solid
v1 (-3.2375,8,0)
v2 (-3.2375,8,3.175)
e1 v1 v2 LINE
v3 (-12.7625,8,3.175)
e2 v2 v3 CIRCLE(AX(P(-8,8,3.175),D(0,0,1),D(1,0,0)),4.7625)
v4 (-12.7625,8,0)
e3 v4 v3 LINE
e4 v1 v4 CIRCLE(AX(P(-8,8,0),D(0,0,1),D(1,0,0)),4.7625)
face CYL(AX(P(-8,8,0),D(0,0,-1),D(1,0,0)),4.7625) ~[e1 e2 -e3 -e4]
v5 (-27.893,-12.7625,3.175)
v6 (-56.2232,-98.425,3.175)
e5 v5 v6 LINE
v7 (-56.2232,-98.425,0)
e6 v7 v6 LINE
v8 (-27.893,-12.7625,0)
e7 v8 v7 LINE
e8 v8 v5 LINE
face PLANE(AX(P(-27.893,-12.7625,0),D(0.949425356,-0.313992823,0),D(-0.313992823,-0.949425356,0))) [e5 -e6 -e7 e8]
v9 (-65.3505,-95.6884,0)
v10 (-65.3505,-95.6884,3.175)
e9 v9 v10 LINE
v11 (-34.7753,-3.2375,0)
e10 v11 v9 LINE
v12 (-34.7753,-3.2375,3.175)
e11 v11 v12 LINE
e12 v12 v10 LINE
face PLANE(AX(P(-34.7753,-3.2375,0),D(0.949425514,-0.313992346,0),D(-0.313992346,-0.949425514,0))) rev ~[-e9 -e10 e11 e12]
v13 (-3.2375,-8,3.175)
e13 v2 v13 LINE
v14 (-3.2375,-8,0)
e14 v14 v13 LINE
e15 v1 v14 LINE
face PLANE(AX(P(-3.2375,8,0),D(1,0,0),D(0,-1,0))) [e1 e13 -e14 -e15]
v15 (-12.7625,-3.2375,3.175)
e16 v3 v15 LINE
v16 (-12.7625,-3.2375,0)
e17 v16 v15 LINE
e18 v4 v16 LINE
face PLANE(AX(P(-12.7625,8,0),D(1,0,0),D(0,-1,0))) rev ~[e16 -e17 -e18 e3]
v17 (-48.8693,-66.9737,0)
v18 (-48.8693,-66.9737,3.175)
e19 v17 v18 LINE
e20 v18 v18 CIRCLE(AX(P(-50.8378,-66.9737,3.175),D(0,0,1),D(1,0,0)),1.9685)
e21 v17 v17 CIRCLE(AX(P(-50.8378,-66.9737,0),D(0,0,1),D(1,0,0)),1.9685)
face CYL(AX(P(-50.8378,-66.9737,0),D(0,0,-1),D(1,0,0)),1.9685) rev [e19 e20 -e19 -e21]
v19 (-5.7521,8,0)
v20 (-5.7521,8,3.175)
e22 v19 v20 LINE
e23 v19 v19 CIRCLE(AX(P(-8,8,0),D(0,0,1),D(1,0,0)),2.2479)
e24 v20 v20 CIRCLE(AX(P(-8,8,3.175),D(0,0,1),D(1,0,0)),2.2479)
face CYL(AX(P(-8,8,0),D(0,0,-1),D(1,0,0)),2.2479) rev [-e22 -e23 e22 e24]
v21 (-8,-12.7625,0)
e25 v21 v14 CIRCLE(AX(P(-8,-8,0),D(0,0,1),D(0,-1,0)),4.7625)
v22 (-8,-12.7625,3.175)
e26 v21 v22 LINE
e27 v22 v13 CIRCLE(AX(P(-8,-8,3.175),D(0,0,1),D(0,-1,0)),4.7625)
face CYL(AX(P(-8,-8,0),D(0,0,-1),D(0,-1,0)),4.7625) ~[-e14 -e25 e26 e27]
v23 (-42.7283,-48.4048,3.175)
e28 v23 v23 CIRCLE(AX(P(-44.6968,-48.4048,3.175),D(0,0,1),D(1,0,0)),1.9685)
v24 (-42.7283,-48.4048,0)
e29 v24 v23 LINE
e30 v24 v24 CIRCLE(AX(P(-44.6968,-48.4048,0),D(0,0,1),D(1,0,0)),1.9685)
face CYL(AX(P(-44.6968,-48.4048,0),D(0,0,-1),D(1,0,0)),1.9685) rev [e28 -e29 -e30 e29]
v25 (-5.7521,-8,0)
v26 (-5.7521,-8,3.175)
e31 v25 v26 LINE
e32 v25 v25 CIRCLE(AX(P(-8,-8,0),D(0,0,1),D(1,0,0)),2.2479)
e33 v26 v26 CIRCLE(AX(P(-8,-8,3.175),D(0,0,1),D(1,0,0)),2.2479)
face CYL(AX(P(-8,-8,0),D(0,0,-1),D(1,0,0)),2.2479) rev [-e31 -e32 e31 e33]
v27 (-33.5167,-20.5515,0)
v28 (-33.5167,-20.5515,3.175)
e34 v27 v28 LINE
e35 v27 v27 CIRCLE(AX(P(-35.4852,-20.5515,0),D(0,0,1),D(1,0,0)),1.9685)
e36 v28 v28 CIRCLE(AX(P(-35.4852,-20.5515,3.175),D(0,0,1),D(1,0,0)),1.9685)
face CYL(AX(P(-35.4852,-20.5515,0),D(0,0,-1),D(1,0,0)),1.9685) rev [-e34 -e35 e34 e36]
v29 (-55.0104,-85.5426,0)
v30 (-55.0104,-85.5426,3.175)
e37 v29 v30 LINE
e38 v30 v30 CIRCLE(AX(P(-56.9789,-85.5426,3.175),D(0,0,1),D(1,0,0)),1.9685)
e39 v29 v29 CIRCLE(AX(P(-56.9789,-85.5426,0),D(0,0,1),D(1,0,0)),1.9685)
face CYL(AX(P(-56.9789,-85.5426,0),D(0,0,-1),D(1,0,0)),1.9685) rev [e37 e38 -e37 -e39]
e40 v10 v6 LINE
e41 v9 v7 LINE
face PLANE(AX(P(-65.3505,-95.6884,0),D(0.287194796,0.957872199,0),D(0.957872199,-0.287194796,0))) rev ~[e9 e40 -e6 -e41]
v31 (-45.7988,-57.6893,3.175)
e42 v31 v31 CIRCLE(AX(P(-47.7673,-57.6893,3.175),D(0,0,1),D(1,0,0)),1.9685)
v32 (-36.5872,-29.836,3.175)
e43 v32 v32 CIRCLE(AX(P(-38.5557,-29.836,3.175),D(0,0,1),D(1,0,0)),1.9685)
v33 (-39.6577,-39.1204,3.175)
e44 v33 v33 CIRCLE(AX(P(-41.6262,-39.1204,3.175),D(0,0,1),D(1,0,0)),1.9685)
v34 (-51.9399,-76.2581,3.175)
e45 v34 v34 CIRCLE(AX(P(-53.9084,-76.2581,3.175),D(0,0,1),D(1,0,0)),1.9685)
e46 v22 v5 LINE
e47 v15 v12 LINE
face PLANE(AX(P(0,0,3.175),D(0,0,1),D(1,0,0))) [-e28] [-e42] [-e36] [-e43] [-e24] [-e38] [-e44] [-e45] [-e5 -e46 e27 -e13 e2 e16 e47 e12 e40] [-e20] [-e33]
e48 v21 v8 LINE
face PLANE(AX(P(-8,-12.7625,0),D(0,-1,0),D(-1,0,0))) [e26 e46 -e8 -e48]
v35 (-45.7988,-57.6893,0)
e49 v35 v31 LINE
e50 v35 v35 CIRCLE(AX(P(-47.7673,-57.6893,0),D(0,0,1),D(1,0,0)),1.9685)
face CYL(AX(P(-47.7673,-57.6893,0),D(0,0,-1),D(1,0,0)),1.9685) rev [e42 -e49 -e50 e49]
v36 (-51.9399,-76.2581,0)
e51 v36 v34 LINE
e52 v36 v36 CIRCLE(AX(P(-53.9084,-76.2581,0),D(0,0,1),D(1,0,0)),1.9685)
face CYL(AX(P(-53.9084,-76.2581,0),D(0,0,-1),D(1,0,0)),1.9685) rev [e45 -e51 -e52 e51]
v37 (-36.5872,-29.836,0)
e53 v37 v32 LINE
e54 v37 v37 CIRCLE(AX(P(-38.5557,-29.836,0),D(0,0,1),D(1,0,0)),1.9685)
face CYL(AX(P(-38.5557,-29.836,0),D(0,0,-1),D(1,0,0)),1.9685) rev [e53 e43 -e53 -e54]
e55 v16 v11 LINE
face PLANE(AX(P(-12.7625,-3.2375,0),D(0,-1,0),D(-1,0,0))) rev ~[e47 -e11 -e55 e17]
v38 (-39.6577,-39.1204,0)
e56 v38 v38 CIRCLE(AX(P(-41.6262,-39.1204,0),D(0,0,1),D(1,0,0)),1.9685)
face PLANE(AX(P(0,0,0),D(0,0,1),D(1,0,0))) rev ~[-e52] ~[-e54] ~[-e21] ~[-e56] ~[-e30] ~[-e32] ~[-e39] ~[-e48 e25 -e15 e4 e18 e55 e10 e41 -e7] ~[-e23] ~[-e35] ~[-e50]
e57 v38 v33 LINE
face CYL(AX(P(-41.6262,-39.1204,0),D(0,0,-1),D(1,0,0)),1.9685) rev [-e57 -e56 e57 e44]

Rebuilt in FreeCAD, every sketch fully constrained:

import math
import FreeCAD as App
import Part
import Sketcher

V = App.Vector
Q = App.Units.Quantity

doc = App.newDocument("Part")
body = doc.addObject("PartDesign::Body", "Body")

sketch1 = body.newObject("Sketcher::SketchObject", "Sketch")
sketch1.AttachmentSupport = (doc.getObject("XY_Plane"), [""])
sketch1.MapMode = "FlatFace"
sketch1.addGeometry(Part.LineSegment(V(-3.2, -8, 0), V(-3.2, 8, 0)), False)
sketch1.addGeometry(Part.ArcOfCircle(Part.Circle(V(-8, 8, 0), V(0, 0, 1), 4.8), math.radians(0), math.radians(180)), False)
sketch1.addGeometry(Part.LineSegment(V(-12.8, 8, 0), V(-12.8, -3.2, 0)), False)
sketch1.addGeometry(Part.LineSegment(V(-12.8, -3.2, 0), V(-34.8, -3.2, 0)), False)
sketch1.addGeometry(Part.LineSegment(V(-34.8, -3.2, 0), V(-65.4, -95.7, 0)), False)
sketch1.addGeometry(Part.LineSegment(V(-65.4, -95.7, 0), V(-56.2, -98.4, 0)), False)
sketch1.addGeometry(Part.LineSegment(V(-56.2, -98.4, 0), V(-27.9, -12.8, 0)), False)
sketch1.addGeometry(Part.LineSegment(V(-27.9, -12.8, 0), V(-8, -12.8, 0)), False)
sketch1.addGeometry(Part.ArcOfCircle(Part.Circle(V(-8, -8, 0), V(0, 0, 1), 4.8), math.radians(-90), math.radians(0)), False)
sketch1.addGeometry(Part.Circle(V(-57, -85.5, 0), V(0, 0, 1), 2), False)
sketch1.addGeometry(Part.Circle(V(-53.9, -76.3, 0), V(0, 0, 1), 2), False)
sketch1.addGeometry(Part.Circle(V(-50.8, -67, 0), V(0, 0, 1), 2), False)
sketch1.addGeometry(Part.Circle(V(-47.8, -57.7, 0), V(0, 0, 1), 2), False)
sketch1.addGeometry(Part.Circle(V(-44.7, -48.4, 0), V(0, 0, 1), 2), False)
sketch1.addGeometry(Part.Circle(V(-41.6, -39.1, 0), V(0, 0, 1), 2), False)
sketch1.addGeometry(Part.Circle(V(-38.6, -29.8, 0), V(0, 0, 1), 2), False)
sketch1.addGeometry(Part.Circle(V(-35.5, -20.6, 0), V(0, 0, 1), 2), False)
sketch1.addGeometry(Part.Circle(V(-8, -8, 0), V(0, 0, 1), 2.2), False)
sketch1.addGeometry(Part.Circle(V(-8, 8, 0), V(0, 0, 1), 2.2), False)
sketch1.addConstraint(Sketcher.Constraint("Tangent", 0, 2, 1, 1))
sketch1.addConstraint(Sketcher.Constraint("Tangent", 1, 2, 2, 1))
sketch1.addConstraint(Sketcher.Constraint("Coincident", 2, 2, 3, 1))
sketch1.addConstraint(Sketcher.Constraint("Coincident", 3, 2, 4, 1))
sketch1.addConstraint(Sketcher.Constraint("Coincident", 4, 2, 5, 1))
sketch1.addConstraint(Sketcher.Constraint("Coincident", 5, 2, 6, 1))
sketch1.addConstraint(Sketcher.Constraint("Coincident", 6, 2, 7, 1))
sketch1.addConstraint(Sketcher.Constraint("Tangent", 7, 2, 8, 1))
sketch1.addConstraint(Sketcher.Constraint("Tangent", 8, 2, 0, 1))
sketch1.addConstraint(Sketcher.Constraint("Vertical", 0))
sketch1.addConstraint(Sketcher.Constraint("Vertical", 2))
sketch1.addConstraint(Sketcher.Constraint("Horizontal", 3))
sketch1.addConstraint(Sketcher.Constraint("Horizontal", 7))
sketch1.addConstraint(Sketcher.Constraint("Coincident", 17, 3, 8, 3))
sketch1.addConstraint(Sketcher.Constraint("Coincident", 18, 3, 1, 3))
sketch1.addConstraint(Sketcher.Constraint("Equal", 1, 8))
sketch1.addConstraint(Sketcher.Constraint("Equal", 9, 10))
sketch1.addConstraint(Sketcher.Constraint("Equal", 10, 11))
sketch1.addConstraint(Sketcher.Constraint("Equal", 11, 12))
sketch1.addConstraint(Sketcher.Constraint("Equal", 12, 13))
sketch1.addConstraint(Sketcher.Constraint("Equal", 13, 14))
sketch1.addConstraint(Sketcher.Constraint("Equal", 14, 15))
sketch1.addConstraint(Sketcher.Constraint("Equal", 15, 16))
sketch1.addConstraint(Sketcher.Constraint("Equal", 17, 18))
sketch1.addConstraint(Sketcher.Constraint("Parallel", 4, 6))
sketch1.addConstraint(Sketcher.Constraint("Diameter", 9, Q("0.155 in")))
sketch1.addConstraint(Sketcher.Constraint("Diameter", 17, Q("0.177 in")))
sketch1.addConstraint(Sketcher.Constraint("Radius", 1, Q("0.1875 in")))
sketch1.addConstraint(Sketcher.Constraint("DistanceY", 8, 3, 2, 2, Q("0.1875 in")))
sketch1.addConstraint(Sketcher.Constraint("Angle", 4, Q("-108.3 deg")))
sketch1.addConstraint(Sketcher.Constraint("Angle", 5, Q("-16.69 deg")))
sketch1.addConstraint(Sketcher.Constraint("DistanceX", 7, 1, 7, 2, Q("0.7832 in")))
sketch1.addConstraint(Sketcher.Constraint("DistanceY", 5, 2, -1, 1, Q("3.875 in")))
sketch1.addConstraint(Sketcher.Constraint("Distance", 6, Q("3.5522 in")))
sketch1.addConstraint(Sketcher.Constraint("DistanceX", 3, 2, 3, 1, 22.0128))
sketch1.addConstraint(Sketcher.Constraint("DistanceY", 0, 1, 0, 2, 16.0))
sketch1.addConstraint(Sketcher.Constraint("DistanceX", 11, 3, -1, 1, Q("2.0015 in")))
sketch1.addConstraint(Sketcher.Constraint("DistanceX", 12, 3, -1, 1, Q("1.8806 in")))
sketch1.addConstraint(Sketcher.Constraint("DistanceY", 13, 3, -1, 1, Q("1.9057 in")))
sketch1.addConstraint(Sketcher.Constraint("DistanceX", 3, 2, -1, 1, Q("1.3691 in")))
sketch1.addConstraint(Sketcher.Constraint("DistanceX", 9, 3, 8, 3, Q("1.9283 in")))
sketch1.addConstraint(Sketcher.Constraint("DistanceX", 10, 3, 11, 3, Q("0.1209 in")))
sketch1.addConstraint(Sketcher.Constraint("DistanceY", 11, 3, 8, 3, Q("2.3218 in")))
sketch1.addConstraint(Sketcher.Constraint("DistanceY", 12, 3, 1, 3, Q("2.5862 in")))
sketch1.addConstraint(Sketcher.Constraint("DistanceX", 13, 3, 14, 3, Q("0.1209 in")))
sketch1.addConstraint(Sketcher.Constraint("DistanceX", 16, 3, 8, 3, Q("1.0821 in")))
sketch1.addConstraint(Sketcher.Constraint("DistanceY", 15, 3, 18, 3, Q("1.4896 in")))
sketch1.addConstraint(Sketcher.Constraint("DistanceX", 15, 3, 6, 2, Q("0.4198 in")))
sketch1.addConstraint(Sketcher.Constraint("DistanceY", 9, 3, -1, 1, 85.5426))
sketch1.addConstraint(Sketcher.Constraint("DistanceY", 10, 3, -1, 1, 76.258))
sketch1.addConstraint(Sketcher.Constraint("DistanceX", 13, 3, -1, 1, 44.6968))
sketch1.addConstraint(Sketcher.Constraint("DistanceY", 14, 3, -1, 1, 39.1204))
sketch1.addConstraint(Sketcher.Constraint("DistanceY", 16, 3, -1, 1, 20.5515))
pad1 = body.newObject("PartDesign::Pad", "Pad")
pad1.Profile = sketch1
pad1.Length = Q("0.125 in")

doc.recompute()
